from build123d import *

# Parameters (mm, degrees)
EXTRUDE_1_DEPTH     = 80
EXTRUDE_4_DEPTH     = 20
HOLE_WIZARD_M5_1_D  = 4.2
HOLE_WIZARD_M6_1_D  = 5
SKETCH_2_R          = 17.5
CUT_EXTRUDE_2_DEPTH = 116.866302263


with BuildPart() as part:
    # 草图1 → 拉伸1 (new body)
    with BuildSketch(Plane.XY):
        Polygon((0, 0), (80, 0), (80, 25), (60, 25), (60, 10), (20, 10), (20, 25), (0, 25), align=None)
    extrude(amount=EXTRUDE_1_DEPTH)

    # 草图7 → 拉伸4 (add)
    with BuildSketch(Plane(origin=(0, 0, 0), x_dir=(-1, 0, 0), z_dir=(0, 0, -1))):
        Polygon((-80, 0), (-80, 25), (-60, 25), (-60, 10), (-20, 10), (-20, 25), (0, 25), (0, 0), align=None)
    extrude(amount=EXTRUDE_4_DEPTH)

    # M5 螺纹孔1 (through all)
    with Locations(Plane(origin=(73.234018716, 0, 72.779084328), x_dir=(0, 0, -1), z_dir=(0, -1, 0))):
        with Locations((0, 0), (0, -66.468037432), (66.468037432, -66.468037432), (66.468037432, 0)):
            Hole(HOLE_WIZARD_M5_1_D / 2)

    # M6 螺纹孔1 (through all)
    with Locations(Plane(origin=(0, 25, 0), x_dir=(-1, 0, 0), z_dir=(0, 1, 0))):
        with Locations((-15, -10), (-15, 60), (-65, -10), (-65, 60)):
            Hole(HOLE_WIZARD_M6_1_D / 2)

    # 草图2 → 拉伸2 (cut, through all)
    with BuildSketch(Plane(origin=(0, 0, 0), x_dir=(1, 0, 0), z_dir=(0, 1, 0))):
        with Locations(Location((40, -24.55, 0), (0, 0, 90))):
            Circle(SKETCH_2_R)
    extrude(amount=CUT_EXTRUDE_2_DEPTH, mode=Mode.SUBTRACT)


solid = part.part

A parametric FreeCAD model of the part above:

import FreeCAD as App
import Part
import Sketcher
from FreeCAD import Vector


def add_polygon(sketch, points):
    """Adds a closed chain of lines whose ends are joined by coincident constraints."""
    first, n = sketch.GeometryCount, len(points)
    for a, b in zip(points, points[1:] + points[:1]):
        sketch.addGeometry(Part.LineSegment(App.Vector(*a, 0), App.Vector(*b, 0)), False)
    for i in range(n):
        sketch.addConstraint(Sketcher.Constraint("Coincident", first + i, 2, first + (i + 1) % n, 1))

doc = App.newDocument("Part")
body = doc.addObject("PartDesign::Body", "Body")

# Sketch on XY plane
sketch1 = body.newObject("Sketcher::SketchObject", "Sketch")
sketch1.AttachmentSupport = (doc.getObject("XY_Plane"), [""])
sketch1.MapMode = "FlatFace"
add_polygon(sketch1, [(0, 0), (80, 0), (80, 25), (60, 25), (60, 10), (20, 10), (20, 25), (0, 25)])  # lines 0-7
sketch1.addConstraint(Sketcher.Constraint("Horizontal", 0))
sketch1.addConstraint(Sketcher.Constraint("Vertical", 1))
sketch1.addConstraint(Sketcher.Constraint("Horizontal", 2))
sketch1.addConstraint(Sketcher.Constraint("Vertical", 3))
sketch1.addConstraint(Sketcher.Constraint("Horizontal", 4))
sketch1.addConstraint(Sketcher.Constraint("Vertical", 5))
sketch1.addConstraint(Sketcher.Constraint("Horizontal", 6))
sketch1.addConstraint(Sketcher.Constraint("Vertical", 7))
sketch1.addConstraint(Sketcher.Constraint("Coincident", 7, 2, -1, 1))
sketch1.addConstraint(Sketcher.Constraint("Horizontal", 2, 2, 5, 2))
sketch1.addConstraint(Sketcher.Constraint("Equal", 2, 6))
sketch1.addConstraint(Sketcher.Constraint("DistanceX", 0, 1, 0, 2, 80.0))
sketch1.addConstraint(Sketcher.Constraint("DistanceX", 2, 2, 2, 1, 20.0))
sketch1.addConstraint(Sketcher.Constraint("DistanceY", 1, 1, 1, 2, 25.0))
sketch1.addConstraint(Sketcher.Constraint("DistanceY", 3, 2, 3, 1, 15.0))
pad1 = body.newObject("PartDesign::Pad", "Pad")
pad1.Profile = sketch1
pad1.Length = 80

# Sketch on XY plane
sketch2 = body.newObject("Sketcher::SketchObject", "Sketch001")
sketch2.AttachmentSupport = (doc.getObject("XY_Plane"), [""])
sketch2.MapMode = "FlatFace"
add_polygon(sketch2, [(80, 25), (80, 0), (0, 0), (0, 25), (20, 25), (20, 10), (60, 10), (60, 25)])  # lines 0-7
sketch2.addConstraint(Sketcher.Constraint("Vertical", 0))
sketch2.addConstraint(Sketcher.Constraint("Horizontal", 1))
sketch2.addConstraint(Sketcher.Constraint("Vertical", 2))
sketch2.addConstraint(Sketcher.Constraint("Horizontal", 3))
sketch2.addConstraint(Sketcher.Constraint("Vertical", 4))
sketch2.addConstraint(Sketcher.Constraint("Horizontal", 5))
sketch2.addConstraint(Sketcher.Constraint("Vertical", 6))
sketch2.addConstraint(Sketcher.Constraint("Horizontal", 7))
sketch2.addConstraint(Sketcher.Constraint("Coincident", 1, 2, -1, 1))
sketch2.addConstraint(Sketcher.Constraint("Horizontal", 3, 2, 6, 2))
sketch2.addConstraint(Sketcher.Constraint("Equal", 3, 7))
sketch2.addConstraint(Sketcher.Constraint("DistanceX", 1, 2, 1, 1, 80.0))
sketch2.addConstraint(Sketcher.Constraint("DistanceX", 3, 1, 3, 2, 20.0))
sketch2.addConstraint(Sketcher.Constraint("DistanceY", 0, 2, 0, 1, 25.0))
sketch2.addConstraint(Sketcher.Constraint("DistanceY", 4, 2, 4, 1, 15.0))
pad2 = body.newObject("PartDesign::Pad", "Pad001")
pad2.Profile = sketch2
pad2.Length = 20
pad2.Reversed = True

# Sketch on XZ plane
sketch3 = body.newObject("Sketcher::SketchObject", "Sketch002")
sketch3.AttachmentSupport = (doc.getObject("XZ_Plane"), [""])
sketch3.MapMode = "FlatFace"
sketch3.addGeometry(Part.Circle(Vector(73.2, 72.8, 0), Vector(0, 0, 1), 2.1), False)
sketch3.addGeometry(Part.Circle(Vector(6.8, 72.8, 0), Vector(0, 0, 1), 2.1), False)
sketch3.addGeometry(Part.Circle(Vector(6.8, 6.3, 0), Vector(0, 0, 1), 2.1), False)
sketch3.addGeometry(Part.Circle(Vector(73.2, 6.3, 0), Vector(0, 0, 1), 2.1), False)
sketch3.addConstraint(Sketcher.Constraint("Equal", 0, 1))
sketch3.addConstraint(Sketcher.Constraint("Equal", 1, 2))
sketch3.addConstraint(Sketcher.Constraint("Equal", 2, 3))
sketch3.addConstraint(Sketcher.Constraint("Horizontal", 0, 3, 1, 3))
sketch3.addConstraint(Sketcher.Constraint("Horizontal", 2, 3, 3, 3))
sketch3.addConstraint(Sketcher.Constraint("Vertical", 1, 3, 2, 3))
sketch3.addConstraint(Sketcher.Constraint("Vertical", 0, 3, 3, 3))
sketch3.addConstraint(Sketcher.Constraint("Diameter", 0, 4.2))
sketch3.addConstraint(Sketcher.Constraint("DistanceX", -1, 1, 0, 3, 73.234019))
sketch3.addConstraint(Sketcher.Constraint("DistanceX", -1, 1, 1, 3, 6.765981))
sketch3.addConstraint(Sketcher.Constraint("DistanceY", -1, 1, 0, 3, 72.779084))
sketch3.addConstraint(Sketcher.Constraint("DistanceY", -1, 1, 2, 3, 6.311047))
doc.recompute()
hole = body.newObject("PartDesign::Hole", "Hole")
hole.Profile = sketch3
hole.ThreadType = "None"
hole.Diameter = 4.2
hole.DepthType = "ThroughAll"

# Sketch on XZ plane
sketch4 = body.newObject("Sketcher::SketchObject", "Sketch003")
sketch4.AttachmentSupport = (doc.getObject("XZ_Plane"), [""])
sketch4.MapMode = "FlatFace"
sketch4.AttachmentOffset = App.Placement(Vector(0, 0, -25), App.Rotation())
sketch4.addGeometry(Part.Circle(Vector(15, -10, 0), Vector(0, 0, 1), 2.5), False)
sketch4.addGeometry(Part.Circle(Vector(15, 60, 0), Vector(0, 0, 1), 2.5), False)
sketch4.addGeometry(Part.Circle(Vector(65, -10, 0), Vector(0, 0, 1), 2.5), False)
sketch4.addGeometry(Part.Circle(Vector(65, 60, 0), Vector(0, 0, 1), 2.5), False)
sketch4.addConstraint(Sketcher.Constraint("Equal", 0, 1))
sketch4.addConstraint(Sketcher.Constraint("Equal", 1, 2))
sketch4.addConstraint(Sketcher.Constraint("Equal", 2, 3))
sketch4.addConstraint(Sketcher.Constraint("Horizontal", 0, 3, 2, 3))
sketch4.addConstraint(Sketcher.Constraint("Horizontal", 1, 3, 3, 3))
sketch4.addConstraint(Sketcher.Constraint("Vertical", 0, 3, 1, 3))
sketch4.addConstraint(Sketcher.Constraint("Vertical", 2, 3, 3, 3))
sketch4.addConstraint(Sketcher.Constraint("Diameter", 0, 5.0))
sketch4.addConstraint(Sketcher.Constraint("DistanceX", -1, 1, 0, 3, 15.0))
sketch4.addConstraint(Sketcher.Constraint("DistanceY", 0, 3, -1, 1, 10.0))
sketch4.addConstraint(Sketcher.Constraint("DistanceY", -1, 1, 1, 3, 60.0))
sketch4.addConstraint(Sketcher.Constraint("DistanceX", -1, 1, 2, 3, 65.0))
doc.recompute()
hole2 = body.newObject("PartDesign::Hole", "Hole001")
hole2.Profile = sketch4
hole2.ThreadType = "None"
hole2.Diameter = 5
hole2.DepthType = "ThroughAll"
hole2.Reversed = True

# Sketch on XZ plane
sketch5 = body.newObject("Sketcher::SketchObject", "Sketch004")
sketch5.AttachmentSupport = (doc.getObject("XZ_Plane"), [""])
sketch5.MapMode = "FlatFace"
sketch5.addGeometry(Part.Circle(Vector(40, 25, 0), Vector(0, 0, 1), 18), False)
sketch5.addConstraint(Sketcher.Constraint("Diameter", 0, 35.0))
sketch5.addConstraint(Sketcher.Constraint("DistanceX", -1, 1, 0, 3, 40.0))
sketch5.addConstraint(Sketcher.Constraint("DistanceY", -1, 1, 0, 3, 24.55))
pocket1 = body.newObject("PartDesign::Pocket", "Pocket")
pocket1.Profile = sketch5
pocket1.Type = "ThroughAll"

doc.recompute()
